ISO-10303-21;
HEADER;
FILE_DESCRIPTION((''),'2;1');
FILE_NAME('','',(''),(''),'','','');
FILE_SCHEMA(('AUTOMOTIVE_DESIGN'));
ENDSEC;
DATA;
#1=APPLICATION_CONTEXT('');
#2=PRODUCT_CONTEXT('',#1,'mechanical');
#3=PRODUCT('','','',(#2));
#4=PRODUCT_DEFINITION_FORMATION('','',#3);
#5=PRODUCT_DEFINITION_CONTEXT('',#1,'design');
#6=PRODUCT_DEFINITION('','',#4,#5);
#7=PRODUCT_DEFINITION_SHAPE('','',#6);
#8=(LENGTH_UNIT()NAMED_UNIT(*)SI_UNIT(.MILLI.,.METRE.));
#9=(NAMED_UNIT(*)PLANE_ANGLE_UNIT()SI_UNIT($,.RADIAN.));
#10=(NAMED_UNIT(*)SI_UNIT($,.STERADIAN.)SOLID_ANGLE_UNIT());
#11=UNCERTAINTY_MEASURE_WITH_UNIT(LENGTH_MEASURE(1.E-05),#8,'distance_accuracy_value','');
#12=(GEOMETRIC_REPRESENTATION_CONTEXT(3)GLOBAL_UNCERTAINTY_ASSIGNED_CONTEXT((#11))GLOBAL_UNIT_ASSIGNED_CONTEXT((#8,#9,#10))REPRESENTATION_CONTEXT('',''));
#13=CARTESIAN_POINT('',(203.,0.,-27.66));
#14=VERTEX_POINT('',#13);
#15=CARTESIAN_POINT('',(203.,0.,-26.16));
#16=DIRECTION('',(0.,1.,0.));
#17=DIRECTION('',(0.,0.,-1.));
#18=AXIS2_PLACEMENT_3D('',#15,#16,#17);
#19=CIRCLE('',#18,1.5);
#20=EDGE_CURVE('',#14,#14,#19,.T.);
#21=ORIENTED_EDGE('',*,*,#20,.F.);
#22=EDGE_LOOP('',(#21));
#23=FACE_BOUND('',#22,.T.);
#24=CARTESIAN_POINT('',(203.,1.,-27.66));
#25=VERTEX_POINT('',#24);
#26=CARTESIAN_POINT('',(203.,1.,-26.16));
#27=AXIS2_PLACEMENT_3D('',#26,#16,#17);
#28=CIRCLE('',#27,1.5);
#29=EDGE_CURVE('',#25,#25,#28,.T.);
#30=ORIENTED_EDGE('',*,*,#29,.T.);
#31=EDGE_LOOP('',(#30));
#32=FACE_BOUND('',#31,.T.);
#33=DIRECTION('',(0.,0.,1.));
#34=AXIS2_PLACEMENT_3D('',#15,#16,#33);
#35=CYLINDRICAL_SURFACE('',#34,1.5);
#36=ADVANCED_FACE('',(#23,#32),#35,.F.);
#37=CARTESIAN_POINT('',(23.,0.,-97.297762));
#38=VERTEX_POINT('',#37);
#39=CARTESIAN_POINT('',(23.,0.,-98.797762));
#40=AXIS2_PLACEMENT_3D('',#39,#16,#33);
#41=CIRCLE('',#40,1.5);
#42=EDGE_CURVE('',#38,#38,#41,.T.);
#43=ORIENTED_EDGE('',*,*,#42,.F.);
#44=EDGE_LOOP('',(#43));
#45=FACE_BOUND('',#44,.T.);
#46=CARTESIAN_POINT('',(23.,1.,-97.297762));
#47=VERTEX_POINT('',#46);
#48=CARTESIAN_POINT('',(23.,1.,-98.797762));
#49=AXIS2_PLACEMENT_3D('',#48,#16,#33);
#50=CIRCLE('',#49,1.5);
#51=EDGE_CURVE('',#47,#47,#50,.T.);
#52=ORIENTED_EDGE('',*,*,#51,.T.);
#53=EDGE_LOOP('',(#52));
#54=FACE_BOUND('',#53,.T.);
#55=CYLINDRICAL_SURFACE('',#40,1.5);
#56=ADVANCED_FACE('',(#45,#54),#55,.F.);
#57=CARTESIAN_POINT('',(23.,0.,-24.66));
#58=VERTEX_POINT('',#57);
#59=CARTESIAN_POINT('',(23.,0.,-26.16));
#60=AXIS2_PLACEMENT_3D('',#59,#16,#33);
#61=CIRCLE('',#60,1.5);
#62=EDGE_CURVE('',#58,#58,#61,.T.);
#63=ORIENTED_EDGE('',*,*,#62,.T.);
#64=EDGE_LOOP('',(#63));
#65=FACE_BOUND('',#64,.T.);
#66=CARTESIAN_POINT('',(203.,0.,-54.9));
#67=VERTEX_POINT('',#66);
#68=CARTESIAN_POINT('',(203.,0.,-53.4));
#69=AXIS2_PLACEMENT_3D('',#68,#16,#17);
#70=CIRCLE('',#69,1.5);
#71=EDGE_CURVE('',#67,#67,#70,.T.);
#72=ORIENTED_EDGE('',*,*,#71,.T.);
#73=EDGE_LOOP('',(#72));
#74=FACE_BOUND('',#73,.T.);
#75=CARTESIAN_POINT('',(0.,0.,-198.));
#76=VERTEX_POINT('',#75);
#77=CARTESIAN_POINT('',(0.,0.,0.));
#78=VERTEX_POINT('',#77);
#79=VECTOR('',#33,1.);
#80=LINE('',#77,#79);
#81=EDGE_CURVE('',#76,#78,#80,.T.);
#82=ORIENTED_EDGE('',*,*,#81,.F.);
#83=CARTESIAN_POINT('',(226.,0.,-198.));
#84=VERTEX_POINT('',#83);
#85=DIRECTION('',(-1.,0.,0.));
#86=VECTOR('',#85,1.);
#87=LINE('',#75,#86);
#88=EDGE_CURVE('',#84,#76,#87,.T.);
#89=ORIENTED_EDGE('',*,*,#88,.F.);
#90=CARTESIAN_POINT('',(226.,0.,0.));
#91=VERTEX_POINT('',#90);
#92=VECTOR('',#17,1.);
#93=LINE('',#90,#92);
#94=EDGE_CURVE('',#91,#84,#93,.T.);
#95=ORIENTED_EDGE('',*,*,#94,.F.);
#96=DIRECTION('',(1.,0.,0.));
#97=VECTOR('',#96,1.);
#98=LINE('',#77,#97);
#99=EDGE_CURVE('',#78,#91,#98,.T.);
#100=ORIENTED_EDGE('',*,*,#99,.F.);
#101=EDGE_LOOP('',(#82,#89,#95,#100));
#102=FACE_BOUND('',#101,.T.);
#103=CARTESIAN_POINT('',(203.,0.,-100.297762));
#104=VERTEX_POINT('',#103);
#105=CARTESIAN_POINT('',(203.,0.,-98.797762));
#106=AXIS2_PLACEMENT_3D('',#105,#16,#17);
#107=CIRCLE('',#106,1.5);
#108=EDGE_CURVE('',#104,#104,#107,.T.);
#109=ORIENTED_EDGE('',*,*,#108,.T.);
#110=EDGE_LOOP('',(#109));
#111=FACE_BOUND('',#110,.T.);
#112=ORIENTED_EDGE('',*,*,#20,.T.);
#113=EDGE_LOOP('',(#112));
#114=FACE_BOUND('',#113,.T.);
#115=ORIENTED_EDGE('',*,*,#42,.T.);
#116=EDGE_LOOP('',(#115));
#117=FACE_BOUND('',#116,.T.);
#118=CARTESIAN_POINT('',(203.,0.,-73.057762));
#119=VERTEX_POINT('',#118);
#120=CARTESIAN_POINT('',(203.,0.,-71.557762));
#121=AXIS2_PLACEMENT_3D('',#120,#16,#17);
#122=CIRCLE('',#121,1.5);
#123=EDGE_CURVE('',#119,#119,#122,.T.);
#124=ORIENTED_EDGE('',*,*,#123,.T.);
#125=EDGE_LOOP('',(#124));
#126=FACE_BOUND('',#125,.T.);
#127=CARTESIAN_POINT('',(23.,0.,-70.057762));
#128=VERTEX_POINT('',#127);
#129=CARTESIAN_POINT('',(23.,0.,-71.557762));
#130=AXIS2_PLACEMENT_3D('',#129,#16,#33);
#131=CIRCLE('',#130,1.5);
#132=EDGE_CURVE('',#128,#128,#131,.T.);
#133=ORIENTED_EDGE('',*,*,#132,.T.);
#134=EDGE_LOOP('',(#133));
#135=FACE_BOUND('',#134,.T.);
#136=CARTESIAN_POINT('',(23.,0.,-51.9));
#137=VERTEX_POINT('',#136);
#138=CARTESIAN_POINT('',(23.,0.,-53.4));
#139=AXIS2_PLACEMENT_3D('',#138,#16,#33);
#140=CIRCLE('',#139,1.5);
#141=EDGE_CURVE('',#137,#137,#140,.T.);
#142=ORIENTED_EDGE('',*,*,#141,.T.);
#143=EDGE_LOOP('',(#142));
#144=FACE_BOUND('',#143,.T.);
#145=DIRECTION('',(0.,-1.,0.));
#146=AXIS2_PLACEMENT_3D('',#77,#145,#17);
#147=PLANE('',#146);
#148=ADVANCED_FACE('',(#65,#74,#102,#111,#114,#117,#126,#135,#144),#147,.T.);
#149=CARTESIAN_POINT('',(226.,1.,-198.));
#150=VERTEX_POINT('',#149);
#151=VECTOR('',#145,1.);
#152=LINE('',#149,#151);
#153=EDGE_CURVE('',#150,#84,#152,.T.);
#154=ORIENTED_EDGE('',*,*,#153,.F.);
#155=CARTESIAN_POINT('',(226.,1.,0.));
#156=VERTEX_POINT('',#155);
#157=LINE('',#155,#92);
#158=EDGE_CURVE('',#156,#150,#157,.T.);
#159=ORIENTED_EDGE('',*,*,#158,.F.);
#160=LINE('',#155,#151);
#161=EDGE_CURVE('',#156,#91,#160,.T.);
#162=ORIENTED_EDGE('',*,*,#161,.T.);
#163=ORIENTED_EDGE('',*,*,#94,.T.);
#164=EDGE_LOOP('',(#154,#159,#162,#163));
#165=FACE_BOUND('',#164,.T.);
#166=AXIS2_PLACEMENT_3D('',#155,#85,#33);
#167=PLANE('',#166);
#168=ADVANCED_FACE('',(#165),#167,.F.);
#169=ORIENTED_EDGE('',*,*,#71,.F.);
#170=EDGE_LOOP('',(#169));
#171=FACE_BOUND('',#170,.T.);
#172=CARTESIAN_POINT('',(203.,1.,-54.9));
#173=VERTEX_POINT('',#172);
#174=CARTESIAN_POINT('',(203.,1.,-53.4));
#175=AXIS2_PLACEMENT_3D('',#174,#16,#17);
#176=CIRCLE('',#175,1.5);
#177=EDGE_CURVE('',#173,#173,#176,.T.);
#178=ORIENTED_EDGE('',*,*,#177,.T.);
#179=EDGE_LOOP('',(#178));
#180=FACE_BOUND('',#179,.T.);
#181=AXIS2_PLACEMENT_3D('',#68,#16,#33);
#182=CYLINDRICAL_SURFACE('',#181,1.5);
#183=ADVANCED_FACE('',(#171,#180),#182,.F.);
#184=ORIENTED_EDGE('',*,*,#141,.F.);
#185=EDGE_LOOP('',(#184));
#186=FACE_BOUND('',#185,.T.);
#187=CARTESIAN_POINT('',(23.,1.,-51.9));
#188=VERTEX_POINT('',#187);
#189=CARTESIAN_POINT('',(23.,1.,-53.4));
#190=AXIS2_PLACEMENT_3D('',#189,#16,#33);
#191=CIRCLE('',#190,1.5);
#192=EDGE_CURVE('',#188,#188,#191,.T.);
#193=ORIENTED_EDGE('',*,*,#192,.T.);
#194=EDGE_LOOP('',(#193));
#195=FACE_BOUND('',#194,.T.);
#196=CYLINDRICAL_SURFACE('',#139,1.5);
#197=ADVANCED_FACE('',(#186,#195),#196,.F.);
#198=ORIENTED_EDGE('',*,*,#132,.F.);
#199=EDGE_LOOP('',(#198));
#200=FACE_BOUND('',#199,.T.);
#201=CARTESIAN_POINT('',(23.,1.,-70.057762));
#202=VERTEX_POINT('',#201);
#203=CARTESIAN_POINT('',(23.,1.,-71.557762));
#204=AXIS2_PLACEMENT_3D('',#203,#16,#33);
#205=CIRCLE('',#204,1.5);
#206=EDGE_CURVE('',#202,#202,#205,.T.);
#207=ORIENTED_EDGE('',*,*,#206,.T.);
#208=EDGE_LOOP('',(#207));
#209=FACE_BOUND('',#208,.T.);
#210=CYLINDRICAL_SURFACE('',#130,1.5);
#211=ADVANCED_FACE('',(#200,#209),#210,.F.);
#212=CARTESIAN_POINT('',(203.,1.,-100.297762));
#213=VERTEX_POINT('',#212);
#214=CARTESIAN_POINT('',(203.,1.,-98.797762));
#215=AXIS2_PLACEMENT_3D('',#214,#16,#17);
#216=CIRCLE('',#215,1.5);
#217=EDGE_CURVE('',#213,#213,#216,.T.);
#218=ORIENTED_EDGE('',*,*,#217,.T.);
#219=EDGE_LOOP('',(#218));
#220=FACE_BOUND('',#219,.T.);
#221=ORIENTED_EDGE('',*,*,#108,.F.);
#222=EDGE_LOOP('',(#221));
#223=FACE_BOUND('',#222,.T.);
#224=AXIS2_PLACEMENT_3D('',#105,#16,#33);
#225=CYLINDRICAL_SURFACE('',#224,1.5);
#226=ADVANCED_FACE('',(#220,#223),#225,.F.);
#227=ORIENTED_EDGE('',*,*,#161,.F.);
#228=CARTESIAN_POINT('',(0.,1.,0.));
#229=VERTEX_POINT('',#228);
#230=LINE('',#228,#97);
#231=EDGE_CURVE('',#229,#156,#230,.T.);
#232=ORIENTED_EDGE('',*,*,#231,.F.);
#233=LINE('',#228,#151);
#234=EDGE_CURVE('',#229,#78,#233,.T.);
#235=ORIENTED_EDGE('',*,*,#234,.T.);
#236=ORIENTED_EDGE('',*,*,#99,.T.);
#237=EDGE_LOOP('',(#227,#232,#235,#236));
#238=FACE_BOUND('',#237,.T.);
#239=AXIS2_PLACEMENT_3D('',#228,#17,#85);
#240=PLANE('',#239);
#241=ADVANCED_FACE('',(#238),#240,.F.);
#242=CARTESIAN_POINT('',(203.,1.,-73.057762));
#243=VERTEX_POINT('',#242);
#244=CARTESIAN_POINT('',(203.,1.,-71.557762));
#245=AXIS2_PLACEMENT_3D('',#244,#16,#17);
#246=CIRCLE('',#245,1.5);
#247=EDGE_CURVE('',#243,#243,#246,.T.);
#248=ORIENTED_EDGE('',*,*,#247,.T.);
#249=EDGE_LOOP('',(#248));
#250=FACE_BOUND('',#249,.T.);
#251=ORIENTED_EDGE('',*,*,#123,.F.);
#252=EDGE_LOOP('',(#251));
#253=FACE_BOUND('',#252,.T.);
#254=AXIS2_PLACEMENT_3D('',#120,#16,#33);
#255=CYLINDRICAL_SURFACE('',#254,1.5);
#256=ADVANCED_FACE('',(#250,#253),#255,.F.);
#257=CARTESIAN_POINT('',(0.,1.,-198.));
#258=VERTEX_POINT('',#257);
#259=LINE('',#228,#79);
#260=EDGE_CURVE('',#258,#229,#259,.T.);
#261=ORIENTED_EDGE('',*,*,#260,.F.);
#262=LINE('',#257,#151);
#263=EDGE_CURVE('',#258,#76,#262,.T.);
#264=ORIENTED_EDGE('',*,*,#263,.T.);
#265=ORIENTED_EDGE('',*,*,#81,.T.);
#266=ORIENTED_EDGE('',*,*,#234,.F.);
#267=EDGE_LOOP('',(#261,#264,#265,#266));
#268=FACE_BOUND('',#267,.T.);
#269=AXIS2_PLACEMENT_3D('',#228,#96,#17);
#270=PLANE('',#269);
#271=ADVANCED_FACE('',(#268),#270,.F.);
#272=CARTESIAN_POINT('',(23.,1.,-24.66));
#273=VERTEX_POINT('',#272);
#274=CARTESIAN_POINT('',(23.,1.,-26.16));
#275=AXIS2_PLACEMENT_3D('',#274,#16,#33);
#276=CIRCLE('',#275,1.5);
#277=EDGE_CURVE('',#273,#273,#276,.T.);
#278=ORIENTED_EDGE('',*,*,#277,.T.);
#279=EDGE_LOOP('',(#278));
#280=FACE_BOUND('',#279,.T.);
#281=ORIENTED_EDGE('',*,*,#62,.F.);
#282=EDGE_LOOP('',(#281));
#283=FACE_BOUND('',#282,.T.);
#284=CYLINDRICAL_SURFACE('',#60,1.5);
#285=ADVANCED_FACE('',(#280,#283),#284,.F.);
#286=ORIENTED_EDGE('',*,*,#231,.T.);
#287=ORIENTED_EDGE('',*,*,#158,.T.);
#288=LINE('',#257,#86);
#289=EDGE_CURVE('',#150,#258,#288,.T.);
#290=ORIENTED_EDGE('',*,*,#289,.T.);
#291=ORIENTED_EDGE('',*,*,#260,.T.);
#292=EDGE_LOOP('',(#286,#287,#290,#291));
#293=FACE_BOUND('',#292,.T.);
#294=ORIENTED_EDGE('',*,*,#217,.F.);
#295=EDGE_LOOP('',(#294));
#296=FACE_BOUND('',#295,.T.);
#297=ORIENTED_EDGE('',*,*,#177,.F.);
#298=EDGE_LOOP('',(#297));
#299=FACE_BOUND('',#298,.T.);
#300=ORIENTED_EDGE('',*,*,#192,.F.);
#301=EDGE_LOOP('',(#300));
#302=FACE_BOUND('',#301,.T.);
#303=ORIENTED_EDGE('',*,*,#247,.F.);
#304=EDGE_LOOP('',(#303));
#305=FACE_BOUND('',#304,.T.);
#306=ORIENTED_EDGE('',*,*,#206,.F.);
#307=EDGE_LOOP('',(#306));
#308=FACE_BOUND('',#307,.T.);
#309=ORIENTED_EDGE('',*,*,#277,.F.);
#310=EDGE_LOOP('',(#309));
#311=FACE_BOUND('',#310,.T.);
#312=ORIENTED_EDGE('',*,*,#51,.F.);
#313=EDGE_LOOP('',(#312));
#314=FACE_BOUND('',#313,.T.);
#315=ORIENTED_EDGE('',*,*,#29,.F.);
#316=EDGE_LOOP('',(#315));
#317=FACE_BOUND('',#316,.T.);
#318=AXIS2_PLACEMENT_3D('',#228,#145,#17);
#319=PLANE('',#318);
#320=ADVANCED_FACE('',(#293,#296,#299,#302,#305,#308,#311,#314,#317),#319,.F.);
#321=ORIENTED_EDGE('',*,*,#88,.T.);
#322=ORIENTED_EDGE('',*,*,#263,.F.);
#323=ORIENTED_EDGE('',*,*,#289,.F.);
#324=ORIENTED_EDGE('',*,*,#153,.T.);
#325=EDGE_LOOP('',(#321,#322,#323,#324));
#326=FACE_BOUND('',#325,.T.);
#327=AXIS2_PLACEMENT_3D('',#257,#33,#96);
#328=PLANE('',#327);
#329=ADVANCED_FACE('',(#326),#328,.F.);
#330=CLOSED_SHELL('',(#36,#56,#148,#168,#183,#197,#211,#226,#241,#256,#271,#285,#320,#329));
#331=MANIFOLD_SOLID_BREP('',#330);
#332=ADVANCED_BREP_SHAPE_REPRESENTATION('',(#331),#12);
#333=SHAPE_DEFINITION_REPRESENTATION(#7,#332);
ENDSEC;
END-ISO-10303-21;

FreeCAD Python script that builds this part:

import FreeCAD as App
import Part
import Sketcher

V = App.Vector

doc = App.newDocument("Part")
body = doc.addObject("PartDesign::Body", "Body")

# Sketch on XZ plane
sketch1 = body.newObject("Sketcher::SketchObject", "Sketch")
sketch1.AttachmentSupport = (doc.getObject("XZ_Plane"), [""])
sketch1.MapMode = "FlatFace"
sketch1.addGeometry([
    Part.LineSegment(V(0, -198, 0), V(0, 0, 0)),
    Part.LineSegment(V(0, 0, 0), V(226, 0, 0)),
    Part.LineSegment(V(226, 0, 0), V(226, -198, 0)),
    Part.LineSegment(V(226, -198, 0), V(0, -198, 0)),
], False)
sketch1.addConstraint([
    Sketcher.Constraint("Coincident", 0, 2, 1, 1),
    Sketcher.Constraint("Coincident", 1, 2, 2, 1),
    Sketcher.Constraint("Coincident", 2, 2, 3, 1),
    Sketcher.Constraint("Coincident", 3, 2, 0, 1),
    Sketcher.Constraint("Vertical", 0),
    Sketcher.Constraint("Horizontal", 1),
    Sketcher.Constraint("Vertical", 2),
    Sketcher.Constraint("Horizontal", 3),
    Sketcher.Constraint("Coincident", 0, 2, -1, 1),
    Sketcher.Constraint("DistanceX", 1, 1, 1, 2, 226.0),
    Sketcher.Constraint("DistanceY", 0, 1, 0, 2, 198.0),
])
pad1 = body.newObject("PartDesign::Pad", "Pad")
pad1.Profile = sketch1
pad1.Length = 1
pad1.Reversed = True

# Sketch on XZ plane
sketch2 = body.newObject("Sketcher::SketchObject", "Sketch001")
sketch2.AttachmentSupport = (doc.getObject("XZ_Plane"), [""])
sketch2.MapMode = "FlatFace"
sketch2.AttachmentOffset = App.Placement(V(0, 0, -1), App.Rotation())
sketch2.addGeometry([
    Part.Circle(V(203, -26.16, 0), V(0, 0, 1), 1.5),  # 0
    Part.Circle(V(203, -53.4, 0), V(0, 0, 1), 1.5),  # 1
    Part.Circle(V(203, -71.557762, 0), V(0, 0, 1), 1.5),  # 2
    Part.Circle(V(203, -98.797762, 0), V(0, 0, 1), 1.5),  # 3
    Part.Circle(V(23, -26.16, 0), V(0, 0, 1), 1.5),  # 4
    Part.Circle(V(23, -53.4, 0), V(0, 0, 1), 1.5),  # 5
    Part.Circle(V(23, -71.557762, 0), V(0, 0, 1), 1.5),  # 6
    Part.Circle(V(23, -98.797762, 0), V(0, 0, 1), 1.5),  # 7
], False)
sketch2.addConstraint([
    Sketcher.Constraint("Equal", 0, 1),
    Sketcher.Constraint("Equal", 1, 2),
    Sketcher.Constraint("Equal", 2, 3),
    Sketcher.Constraint("Equal", 3, 4),
    Sketcher.Constraint("Equal", 4, 5),
    Sketcher.Constraint("Equal", 5, 6),
    Sketcher.Constraint("Equal", 6, 7),
    Sketcher.Constraint("Horizontal", 0, 3, 4, 3),
    Sketcher.Constraint("Horizontal", 1, 3, 5, 3),
    Sketcher.Constraint("Horizontal", 2, 3, 6, 3),
    Sketcher.Constraint("Horizontal", 3, 3, 7, 3),
    Sketcher.Constraint("Vertical", 0, 3, 1, 3),
    Sketcher.Constraint("Vertical", 1, 3, 2, 3),
    Sketcher.Constraint("Vertical", 2, 3, 3, 3),
    Sketcher.Constraint("Vertical", 4, 3, 5, 3),
    Sketcher.Constraint("Vertical", 5, 3, 6, 3),
    Sketcher.Constraint("Vertical", 6, 3, 7, 3),
    Sketcher.Constraint("Diameter", 0, 3.0),
    Sketcher.Constraint("DistanceX", -1, 1, 0, 3, 203.0),
    Sketcher.Constraint("DistanceX", -1, 1, 4, 3, 23.0),
    Sketcher.Constraint("DistanceY", 1, 3, -1, 1, 53.4),
    Sketcher.Constraint("DistanceY", 0, 3, -1, 1, 26.16),
    Sketcher.Constraint("DistanceY", 3, 3, 2, 3, 27.24),
    Sketcher.Constraint("DistanceY", 2, 3, -1, 1, 71.557762),
])
pocket1 = body.newObject("PartDesign::Pocket", "Pocket")
pocket1.Profile = sketch2
pocket1.Length = 1
pocket1.Reversed = True

doc.recompute()
